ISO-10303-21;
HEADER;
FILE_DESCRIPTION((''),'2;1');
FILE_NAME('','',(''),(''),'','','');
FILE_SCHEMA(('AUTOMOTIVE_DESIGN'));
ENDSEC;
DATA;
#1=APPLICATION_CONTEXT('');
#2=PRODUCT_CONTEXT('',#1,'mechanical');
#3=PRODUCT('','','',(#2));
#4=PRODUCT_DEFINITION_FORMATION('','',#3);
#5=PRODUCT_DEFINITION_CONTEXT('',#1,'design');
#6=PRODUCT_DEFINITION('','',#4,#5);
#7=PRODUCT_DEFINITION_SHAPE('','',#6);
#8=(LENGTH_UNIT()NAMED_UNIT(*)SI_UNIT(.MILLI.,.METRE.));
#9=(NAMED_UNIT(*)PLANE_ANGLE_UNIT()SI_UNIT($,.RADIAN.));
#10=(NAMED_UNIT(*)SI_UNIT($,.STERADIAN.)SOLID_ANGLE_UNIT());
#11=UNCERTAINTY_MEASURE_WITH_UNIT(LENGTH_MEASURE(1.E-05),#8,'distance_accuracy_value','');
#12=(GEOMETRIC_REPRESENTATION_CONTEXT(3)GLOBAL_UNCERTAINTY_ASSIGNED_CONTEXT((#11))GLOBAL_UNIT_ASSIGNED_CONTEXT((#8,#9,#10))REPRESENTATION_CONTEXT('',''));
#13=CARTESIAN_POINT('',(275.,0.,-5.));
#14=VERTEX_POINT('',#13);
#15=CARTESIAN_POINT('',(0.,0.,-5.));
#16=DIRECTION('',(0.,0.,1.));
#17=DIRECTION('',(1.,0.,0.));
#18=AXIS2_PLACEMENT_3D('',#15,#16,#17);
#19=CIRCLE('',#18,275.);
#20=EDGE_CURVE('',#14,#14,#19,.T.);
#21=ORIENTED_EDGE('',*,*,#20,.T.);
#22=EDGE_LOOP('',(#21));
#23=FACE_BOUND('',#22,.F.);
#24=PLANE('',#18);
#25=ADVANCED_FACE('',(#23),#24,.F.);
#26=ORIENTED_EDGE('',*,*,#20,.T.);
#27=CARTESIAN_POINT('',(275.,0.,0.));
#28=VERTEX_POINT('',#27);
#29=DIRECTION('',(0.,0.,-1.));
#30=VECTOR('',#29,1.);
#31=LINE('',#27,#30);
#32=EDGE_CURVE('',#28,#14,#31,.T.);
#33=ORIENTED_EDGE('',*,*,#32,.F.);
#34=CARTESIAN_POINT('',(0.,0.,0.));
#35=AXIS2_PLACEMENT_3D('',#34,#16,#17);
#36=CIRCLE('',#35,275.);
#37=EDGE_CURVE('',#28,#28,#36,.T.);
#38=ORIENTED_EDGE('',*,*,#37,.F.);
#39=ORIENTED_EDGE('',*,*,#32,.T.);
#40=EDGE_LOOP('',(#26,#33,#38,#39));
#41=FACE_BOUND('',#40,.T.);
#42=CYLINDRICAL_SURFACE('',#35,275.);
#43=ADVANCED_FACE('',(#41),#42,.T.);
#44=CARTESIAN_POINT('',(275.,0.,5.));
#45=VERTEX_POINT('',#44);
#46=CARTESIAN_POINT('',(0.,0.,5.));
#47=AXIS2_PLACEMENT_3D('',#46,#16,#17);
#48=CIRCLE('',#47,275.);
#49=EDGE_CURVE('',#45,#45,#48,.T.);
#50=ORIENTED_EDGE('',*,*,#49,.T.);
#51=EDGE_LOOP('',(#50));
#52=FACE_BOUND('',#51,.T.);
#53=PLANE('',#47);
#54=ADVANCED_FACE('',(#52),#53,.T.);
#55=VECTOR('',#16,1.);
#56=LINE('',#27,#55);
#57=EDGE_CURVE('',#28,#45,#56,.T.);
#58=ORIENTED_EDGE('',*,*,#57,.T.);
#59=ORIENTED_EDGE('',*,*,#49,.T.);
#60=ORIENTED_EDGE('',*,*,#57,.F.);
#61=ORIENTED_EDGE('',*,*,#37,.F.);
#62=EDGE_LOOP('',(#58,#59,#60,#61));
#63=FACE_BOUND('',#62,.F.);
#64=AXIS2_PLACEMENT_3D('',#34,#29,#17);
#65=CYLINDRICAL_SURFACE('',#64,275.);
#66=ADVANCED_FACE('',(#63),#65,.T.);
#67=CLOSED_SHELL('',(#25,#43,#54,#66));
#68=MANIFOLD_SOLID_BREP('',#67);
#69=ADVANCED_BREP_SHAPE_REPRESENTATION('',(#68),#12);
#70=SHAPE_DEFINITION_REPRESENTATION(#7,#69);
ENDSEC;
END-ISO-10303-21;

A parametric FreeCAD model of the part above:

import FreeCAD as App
import Part
import Sketcher

V = App.Vector
Q = App.Units.Quantity

doc = App.newDocument("Part")
body = doc.addObject("PartDesign::Body", "Body")

# Sketch on XY plane
sketch1 = body.newObject("Sketcher::SketchObject", "Sketch")
sketch1.AttachmentSupport = (doc.getObject("XY_Plane"), [""])
sketch1.MapMode = "FlatFace"
sketch1.addGeometry(Part.Circle(V(0, 0, 0), V(0, 0, 1), 275), False)
sketch1.addConstraint(Sketcher.Constraint("Coincident", 0, 3, -1, 1))
sketch1.addConstraint(Sketcher.Constraint("Diameter", 0, Q("550 mm")))
pad1 = body.newObject("PartDesign::Pad", "Pad")
pad1.Profile = sketch1
pad1.Length = 10
pad1.Midplane = True

doc.recompute()
